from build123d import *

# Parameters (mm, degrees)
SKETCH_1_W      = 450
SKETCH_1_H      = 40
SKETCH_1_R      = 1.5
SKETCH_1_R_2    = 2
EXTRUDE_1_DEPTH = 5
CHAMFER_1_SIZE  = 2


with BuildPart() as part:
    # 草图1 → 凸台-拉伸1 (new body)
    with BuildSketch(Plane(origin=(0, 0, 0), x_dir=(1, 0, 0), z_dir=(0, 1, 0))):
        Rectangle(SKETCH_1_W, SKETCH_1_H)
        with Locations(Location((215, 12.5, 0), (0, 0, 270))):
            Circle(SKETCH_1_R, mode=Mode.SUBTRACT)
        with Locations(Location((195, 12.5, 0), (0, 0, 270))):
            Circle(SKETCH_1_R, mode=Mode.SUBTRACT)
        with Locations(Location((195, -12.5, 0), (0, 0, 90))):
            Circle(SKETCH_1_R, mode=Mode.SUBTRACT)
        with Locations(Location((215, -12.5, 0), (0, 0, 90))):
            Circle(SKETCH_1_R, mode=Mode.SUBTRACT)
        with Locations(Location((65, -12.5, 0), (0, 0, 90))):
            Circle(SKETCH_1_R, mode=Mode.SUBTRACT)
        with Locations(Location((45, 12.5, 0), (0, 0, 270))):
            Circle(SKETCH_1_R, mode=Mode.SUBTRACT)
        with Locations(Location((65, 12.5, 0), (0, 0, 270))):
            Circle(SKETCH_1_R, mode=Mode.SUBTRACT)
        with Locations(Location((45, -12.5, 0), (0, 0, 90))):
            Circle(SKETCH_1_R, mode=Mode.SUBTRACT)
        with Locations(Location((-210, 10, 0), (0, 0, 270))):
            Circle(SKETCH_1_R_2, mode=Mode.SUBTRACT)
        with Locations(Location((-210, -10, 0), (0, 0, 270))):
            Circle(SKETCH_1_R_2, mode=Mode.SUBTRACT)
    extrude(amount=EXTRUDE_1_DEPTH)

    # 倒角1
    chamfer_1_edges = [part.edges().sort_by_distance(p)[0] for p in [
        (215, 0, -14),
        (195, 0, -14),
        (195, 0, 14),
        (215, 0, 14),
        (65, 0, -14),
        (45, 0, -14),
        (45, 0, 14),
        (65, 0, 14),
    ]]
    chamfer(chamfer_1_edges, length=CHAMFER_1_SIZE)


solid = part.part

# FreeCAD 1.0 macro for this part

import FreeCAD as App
import Part
import Sketcher
from FreeCAD import Vector
Q = App.Units.Quantity


def edges_at(feature, points):
    """Names of the edges that pass closest to the given points."""
    edges = feature.Shape.Edges
    near = lambda p: min(range(len(edges)), key=lambda i: edges[i].distToShape(Part.Vertex(*p))[0])
    return sorted({f"Edge{near(p) + 1}" for p in points})


def add_polygon(sketch, points):
    """Adds a closed chain of lines whose ends are joined by coincident constraints."""
    first, n = sketch.GeometryCount, len(points)
    for a, b in zip(points, points[1:] + points[:1]):
        sketch.addGeometry(Part.LineSegment(App.Vector(*a, 0), App.Vector(*b, 0)), False)
    for i in range(n):
        sketch.addConstraint(Sketcher.Constraint("Coincident", first + i, 2, first + (i + 1) % n, 1))

doc = App.newDocument("Part")
body = doc.addObject("PartDesign::Body", "Body")

sketch1 = body.newObject("Sketcher::SketchObject", "Sketch")
sketch1.AttachmentSupport = (doc.getObject("XZ_Plane"), [""])
sketch1.MapMode = "FlatFace"
add_polygon(sketch1, [(-225, -20), (-225, 20), (225, 20), (225, -20)])
sketch1.addGeometry(Part.Circle(Vector(-210, 10, 0), Vector(0, 0, 1), 2), False)
sketch1.addGeometry(Part.Circle(Vector(45, 12.5, 0), Vector(0, 0, 1), 1.5), False)
sketch1.addGeometry(Part.Circle(Vector(65, 12.5, 0), Vector(0, 0, 1), 1.5), False)
sketch1.addGeometry(Part.Circle(Vector(195, 12.5, 0), Vector(0, 0, 1), 1.5), False)
sketch1.addGeometry(Part.Circle(Vector(215, 12.5, 0), Vector(0, 0, 1), 1.5), False)
sketch1.addGeometry(Part.Circle(Vector(-210, -10, 0), Vector(0, 0, 1), 2), False)
sketch1.addGeometry(Part.Circle(Vector(45, -12.5, 0), Vector(0, 0, 1), 1.5), False)
sketch1.addGeometry(Part.Circle(Vector(65, -12.5, 0), Vector(0, 0, 1), 1.5), False)
sketch1.addGeometry(Part.Circle(Vector(195, -12.5, 0), Vector(0, 0, 1), 1.5), False)
sketch1.addGeometry(Part.Circle(Vector(215, -12.5, 0), Vector(0, 0, 1), 1.5), False)
sketch1.addConstraint(Sketcher.Constraint("Vertical", 0))
sketch1.addConstraint(Sketcher.Constraint("Horizontal", 1))
sketch1.addConstraint(Sketcher.Constraint("Vertical", 2))
sketch1.addConstraint(Sketcher.Constraint("Horizontal", 3))
sketch1.addConstraint(Sketcher.Constraint("Equal", 5, 6))
sketch1.addConstraint(Sketcher.Constraint("Equal", 6, 7))
sketch1.addConstraint(Sketcher.Constraint("Equal", 7, 8))
sketch1.addConstraint(Sketcher.Constraint("Equal", 4, 9))
sketch1.addConstraint(Sketcher.Constraint("Equal", 8, 10))
sketch1.addConstraint(Sketcher.Constraint("Equal", 10, 11))
sketch1.addConstraint(Sketcher.Constraint("Equal", 11, 12))
sketch1.addConstraint(Sketcher.Constraint("Equal", 12, 13))
sketch1.addConstraint(Sketcher.Constraint("Symmetric", 0, 2, 2, 2, -1, 1))
sketch1.addConstraint(Sketcher.Constraint("Symmetric", 4, 3, 9, 3, -1))
sketch1.addConstraint(Sketcher.Constraint("Symmetric", 5, 3, 10, 3, -1))
sketch1.addConstraint(Sketcher.Constraint("Symmetric", 6, 3, 11, 3, -1))
sketch1.addConstraint(Sketcher.Constraint("Symmetric", 7, 3, 12, 3, -1))
sketch1.addConstraint(Sketcher.Constraint("Symmetric", 8, 3, 13, 3, -1))
sketch1.addConstraint(Sketcher.Constraint("Horizontal", 5, 3, 6, 3))
sketch1.addConstraint(Sketcher.Constraint("Horizontal", 6, 3, 7, 3))
sketch1.addConstraint(Sketcher.Constraint("Horizontal", 7, 3, 8, 3))
sketch1.addConstraint(Sketcher.Constraint("Diameter", 4, Q("4 mm")))
sketch1.addConstraint(Sketcher.Constraint("Diameter", 5, Q("3 mm")))
sketch1.addConstraint(Sketcher.Constraint("DistanceX", 1, 1, 1, 2, Q("450 mm")))
sketch1.addConstraint(Sketcher.Constraint("DistanceY", 0, 1, 0, 2, Q("40 mm")))
sketch1.addConstraint(Sketcher.Constraint("DistanceX", 4, 3, -1, 1, Q("210 mm")))
sketch1.addConstraint(Sketcher.Constraint("DistanceY", -1, 1, 4, 3, Q("10 mm")))
sketch1.addConstraint(Sketcher.Constraint("DistanceX", -1, 1, 5, 3, Q("45 mm")))
sketch1.addConstraint(Sketcher.Constraint("DistanceX", -1, 1, 6, 3, Q("65 mm")))
sketch1.addConstraint(Sketcher.Constraint("DistanceX", -1, 1, 7, 3, Q("195 mm")))
sketch1.addConstraint(Sketcher.Constraint("DistanceX", -1, 1, 8, 3, Q("215 mm")))
sketch1.addConstraint(Sketcher.Constraint("DistanceY", 10, 3, 5, 3, Q("25 mm")))
pad1 = body.newObject("PartDesign::Pad", "Pad")
pad1.Profile = sketch1
pad1.Length = 5
pad1.Reversed = True
doc.recompute()

chamfer = body.newObject("PartDesign::Chamfer", "Chamfer")
chamfer.Base = (pad1, edges_at(pad1, [
    (215, 0, -14),
    (195, 0, -14),
    (195, 0, 14),
    (215, 0, 14),
    (65, 0, -14),
    (45, 0, -14),
    (45, 0, 14),
    (65, 0, 14),
]))
chamfer.Size = 2

doc.recompute()
